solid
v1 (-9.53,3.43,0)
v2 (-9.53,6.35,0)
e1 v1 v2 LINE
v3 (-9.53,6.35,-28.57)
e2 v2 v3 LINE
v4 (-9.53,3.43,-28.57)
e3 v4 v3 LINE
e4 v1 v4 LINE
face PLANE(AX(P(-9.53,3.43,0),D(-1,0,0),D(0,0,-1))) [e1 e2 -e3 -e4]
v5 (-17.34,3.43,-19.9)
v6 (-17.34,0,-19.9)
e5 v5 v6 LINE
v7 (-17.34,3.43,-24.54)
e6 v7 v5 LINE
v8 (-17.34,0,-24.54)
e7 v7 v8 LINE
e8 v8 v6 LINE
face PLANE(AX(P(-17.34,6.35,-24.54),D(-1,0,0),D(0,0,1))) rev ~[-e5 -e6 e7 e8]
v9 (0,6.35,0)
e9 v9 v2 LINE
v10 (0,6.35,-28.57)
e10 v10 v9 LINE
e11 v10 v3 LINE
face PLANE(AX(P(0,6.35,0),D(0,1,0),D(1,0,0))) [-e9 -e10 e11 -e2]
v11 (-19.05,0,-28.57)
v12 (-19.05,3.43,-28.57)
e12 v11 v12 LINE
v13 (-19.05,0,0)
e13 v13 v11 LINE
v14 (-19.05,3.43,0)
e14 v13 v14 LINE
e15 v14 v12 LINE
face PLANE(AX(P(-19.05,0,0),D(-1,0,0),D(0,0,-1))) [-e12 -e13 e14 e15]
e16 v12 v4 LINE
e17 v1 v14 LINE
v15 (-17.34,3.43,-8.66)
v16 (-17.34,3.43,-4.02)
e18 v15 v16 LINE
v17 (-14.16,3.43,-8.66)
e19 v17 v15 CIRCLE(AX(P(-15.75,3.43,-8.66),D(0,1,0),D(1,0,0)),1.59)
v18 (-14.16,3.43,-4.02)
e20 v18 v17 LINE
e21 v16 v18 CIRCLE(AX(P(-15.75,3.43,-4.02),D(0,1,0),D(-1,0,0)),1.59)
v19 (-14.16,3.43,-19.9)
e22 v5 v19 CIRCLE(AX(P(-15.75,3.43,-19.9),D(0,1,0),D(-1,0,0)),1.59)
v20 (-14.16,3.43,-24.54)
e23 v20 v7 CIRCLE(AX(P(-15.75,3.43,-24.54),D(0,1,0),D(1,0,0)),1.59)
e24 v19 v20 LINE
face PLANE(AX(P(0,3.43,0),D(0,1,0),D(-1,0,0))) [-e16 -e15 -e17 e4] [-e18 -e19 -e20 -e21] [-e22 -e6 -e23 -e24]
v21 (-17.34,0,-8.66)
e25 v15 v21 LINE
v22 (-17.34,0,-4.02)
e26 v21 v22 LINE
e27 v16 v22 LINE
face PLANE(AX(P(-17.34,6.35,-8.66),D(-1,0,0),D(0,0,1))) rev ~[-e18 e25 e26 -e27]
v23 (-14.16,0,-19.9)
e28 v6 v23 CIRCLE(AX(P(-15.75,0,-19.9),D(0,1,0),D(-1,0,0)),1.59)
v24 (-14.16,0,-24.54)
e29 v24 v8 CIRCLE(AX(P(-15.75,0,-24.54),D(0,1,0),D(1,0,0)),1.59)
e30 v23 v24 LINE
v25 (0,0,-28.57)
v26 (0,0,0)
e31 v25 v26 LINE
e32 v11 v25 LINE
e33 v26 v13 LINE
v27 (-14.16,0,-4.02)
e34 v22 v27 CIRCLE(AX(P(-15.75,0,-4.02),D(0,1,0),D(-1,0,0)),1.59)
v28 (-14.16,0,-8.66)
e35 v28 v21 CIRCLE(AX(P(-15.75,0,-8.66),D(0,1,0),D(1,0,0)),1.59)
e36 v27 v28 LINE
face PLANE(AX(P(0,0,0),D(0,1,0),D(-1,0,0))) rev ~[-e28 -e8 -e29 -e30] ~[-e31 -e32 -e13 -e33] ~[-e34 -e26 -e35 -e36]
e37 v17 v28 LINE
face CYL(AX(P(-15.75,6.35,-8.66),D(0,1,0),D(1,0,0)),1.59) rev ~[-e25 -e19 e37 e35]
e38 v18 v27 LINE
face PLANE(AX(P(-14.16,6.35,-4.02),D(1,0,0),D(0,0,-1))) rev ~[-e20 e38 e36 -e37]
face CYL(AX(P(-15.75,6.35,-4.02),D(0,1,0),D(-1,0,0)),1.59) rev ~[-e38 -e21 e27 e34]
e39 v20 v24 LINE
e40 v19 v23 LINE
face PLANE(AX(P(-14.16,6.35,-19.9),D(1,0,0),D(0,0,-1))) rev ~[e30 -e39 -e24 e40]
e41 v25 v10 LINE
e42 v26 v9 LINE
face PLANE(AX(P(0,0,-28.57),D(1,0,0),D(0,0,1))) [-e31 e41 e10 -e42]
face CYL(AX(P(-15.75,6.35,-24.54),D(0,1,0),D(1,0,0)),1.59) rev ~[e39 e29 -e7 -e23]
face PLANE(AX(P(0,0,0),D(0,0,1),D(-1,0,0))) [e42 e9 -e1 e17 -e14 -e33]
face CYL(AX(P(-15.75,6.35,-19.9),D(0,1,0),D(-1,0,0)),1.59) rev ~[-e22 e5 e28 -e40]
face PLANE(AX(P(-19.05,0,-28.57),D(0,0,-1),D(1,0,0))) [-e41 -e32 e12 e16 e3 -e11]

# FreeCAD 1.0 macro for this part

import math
import FreeCAD as App
import Part
import Sketcher

V = App.Vector
Q = App.Units.Quantity


def add_polygon(sketch, points):
    """Adds a closed chain of lines whose ends are joined by coincident constraints."""
    first, n = sketch.GeometryCount, len(points)
    for a, b in zip(points, points[1:] + points[:1]):
        sketch.addGeometry(Part.LineSegment(App.Vector(*a, 0), App.Vector(*b, 0)), False)
    for i in range(n):
        sketch.addConstraint(Sketcher.Constraint("Coincident", first + i, 2, first + (i + 1) % n, 1))

doc = App.newDocument("Part")
body = doc.addObject("PartDesign::Body", "Body")

# Sketch on XZ plane
sketch1 = doc.addObject("Sketcher::SketchObject", "Sketch")
body.addObject(sketch1)
sketch1.AttachmentSupport = (doc.XZ_Plane, [""])
sketch1.MapMode = "FlatFace"
add_polygon(sketch1, [(-19, 0), (0, 0), (0, -29), (-19, -29)])  # lines 0-3
sketch1.addConstraint([
    Sketcher.Constraint("Horizontal", 0),
    Sketcher.Constraint("Vertical", 1),
    Sketcher.Constraint("Horizontal", 2),
    Sketcher.Constraint("Vertical", 3),
    Sketcher.Constraint("Coincident", 0, 2, -1, 1),
    Sketcher.Constraint("DistanceX", 0, 1, 0, 2, Q("0.75 in")),
    Sketcher.Constraint("DistanceY", 1, 2, 1, 1, Q("1.1248 in")),
])
pad1 = doc.addObject("PartDesign::Pad", "Pad")
body.addObject(pad1)
pad1.Profile = sketch1
pad1.Length = 3.43
pad1.Reversed = True

# Sketch on XZ plane
sketch2 = doc.addObject("Sketcher::SketchObject", "Sketch001")
body.addObject(sketch2)
sketch2.AttachmentSupport = (doc.XZ_Plane, [""])
sketch2.MapMode = "FlatFace"
sketch2.AttachmentOffset = App.Placement(V(0, 0, -3.43), App.Rotation())
add_polygon(sketch2, [(0, 0), (0, -29), (-10, -29), (-10, 0)])  # lines 0-3
sketch2.addConstraint([
    Sketcher.Constraint("Vertical", 0),
    Sketcher.Constraint("Horizontal", 1),
    Sketcher.Constraint("Vertical", 2),
    Sketcher.Constraint("Horizontal", 3),
    Sketcher.Constraint("Coincident", 3, 2, -1, 1),
    Sketcher.Constraint("DistanceX", 1, 2, 1, 1, Q("0.3752 in")),
    Sketcher.Constraint("DistanceY", 0, 2, 0, 1, Q("1.1248 in")),
])
pad2 = doc.addObject("PartDesign::Pad", "Pad001")
body.addObject(pad2)
pad2.Profile = sketch2
pad2.Length = 2.92
pad2.Reversed = True

# Sketch on XZ plane
sketch3 = doc.addObject("Sketcher::SketchObject", "Sketch002")
body.addObject(sketch3)
sketch3.AttachmentSupport = (doc.XZ_Plane, [""])
sketch3.MapMode = "FlatFace"
sketch3.AttachmentOffset = App.Placement(V(0, 0, -0.25 * 25.4), App.Rotation())
sketch3.addGeometry([
    Part.ArcOfCircle(Part.Circle(V(-15.8, -4, 0), V(0, 0, 1), 1.6), math.radians(0), math.radians(180)),  # 0
    Part.LineSegment(V(-14.2, -4, 0), V(-14.2, -8.7, 0)),  # 1
    Part.ArcOfCircle(Part.Circle(V(-15.8, -8.7, 0), V(0, 0, 1), 1.6), math.radians(180), math.radians(360)),  # 2
    Part.LineSegment(V(-17.3, -8.7, 0), V(-17.3, -4, 0)),  # 3
    Part.ArcOfCircle(Part.Circle(V(-15.8, -19.9, 0), V(0, 0, 1), 1.6), math.radians(0), math.radians(180)),  # 4
    Part.LineSegment(V(-14.2, -19.9, 0), V(-14.2, -24.5, 0)),  # 5
    Part.ArcOfCircle(Part.Circle(V(-15.8, -24.5, 0), V(0, 0, 1), 1.6), math.radians(180), math.radians(360)),  # 6
    Part.LineSegment(V(-17.3, -24.5, 0), V(-17.3, -19.9, 0)),  # 7
], False)
sketch3.addConstraint([
    Sketcher.Constraint("Tangent", 0, 1, 1, 1),
    Sketcher.Constraint("Tangent", 1, 2, 2, 2),
    Sketcher.Constraint("Tangent", 2, 1, 3, 1),
    Sketcher.Constraint("Tangent", 3, 2, 0, 2),
    Sketcher.Constraint("Tangent", 4, 1, 5, 1),
    Sketcher.Constraint("Tangent", 5, 2, 6, 2),
    Sketcher.Constraint("Tangent", 6, 1, 7, 1),
    Sketcher.Constraint("Tangent", 7, 2, 4, 2),
    Sketcher.Constraint("Vertical", 1),
    Sketcher.Constraint("Vertical", 3),
    Sketcher.Constraint("Vertical", 5),
    Sketcher.Constraint("Vertical", 7),
    Sketcher.Constraint("Equal", 2, 4),
    Sketcher.Constraint("Vertical", 2, 3, 4, 3),
    Sketcher.Constraint("Equal", 3, 5),
    Sketcher.Constraint("Radius", 0, Q("0.0626 in")),
    Sketcher.Constraint("DistanceY", 1, 2, 1, 1, 4.64),
    Sketcher.Constraint("DistanceY", 4, 3, 0, 3, Q("0.6252 in")),
    Sketcher.Constraint("DistanceX", 0, 3, -1, 1, 15.75),
    Sketcher.Constraint("DistanceY", 0, 3, -1, 1, 4.02),
])
pocket1 = doc.addObject("PartDesign::Pocket", "Pocket")
body.addObject(pocket1)
pocket1.Profile = sketch3
pocket1.Type = "ThroughAll"
pocket1.Reversed = True

doc.recompute()
